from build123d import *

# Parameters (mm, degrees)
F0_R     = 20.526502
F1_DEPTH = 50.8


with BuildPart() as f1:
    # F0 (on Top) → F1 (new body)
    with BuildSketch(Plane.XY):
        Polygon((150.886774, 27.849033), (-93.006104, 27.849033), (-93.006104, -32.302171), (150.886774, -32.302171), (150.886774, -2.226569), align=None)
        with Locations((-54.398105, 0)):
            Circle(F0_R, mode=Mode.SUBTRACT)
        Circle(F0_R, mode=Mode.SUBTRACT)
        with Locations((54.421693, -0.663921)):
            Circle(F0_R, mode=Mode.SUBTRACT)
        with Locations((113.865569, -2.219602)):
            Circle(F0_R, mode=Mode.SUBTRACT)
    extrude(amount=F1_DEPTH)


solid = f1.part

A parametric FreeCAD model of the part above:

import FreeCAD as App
import Part
import Sketcher
from FreeCAD import Vector
Q = App.Units.Quantity


def add_polygon(sketch, points):
    """Adds a closed chain of lines whose ends are joined by coincident constraints."""
    first, n = sketch.GeometryCount, len(points)
    for a, b in zip(points, points[1:] + points[:1]):
        sketch.addGeometry(Part.LineSegment(App.Vector(*a, 0), App.Vector(*b, 0)), False)
    for i in range(n):
        sketch.addConstraint(Sketcher.Constraint("Coincident", first + i, 2, first + (i + 1) % n, 1))

doc = App.newDocument("Part")
body = doc.addObject("PartDesign::Body", "Body")

# Sketch on XY plane
sketch1 = body.newObject("Sketcher::SketchObject", "Sketch")
sketch1.AttachmentSupport = (doc.getObject("XY_Plane"), [""])
sketch1.MapMode = "FlatFace"
add_polygon(sketch1, [(150.886774, 27.849033), (-93.006104, 27.849033), (-93.006104, -32.302171), (150.886774, -32.302171)])  # lines 0-3
sketch1.addGeometry(Part.Circle(Vector(113.865569, -2.219602, 0), Vector(0, 0, 1), 20.526502), False)  # 4
sketch1.addGeometry(Part.Circle(Vector(-54.398105, 0, 0), Vector(0, 0, 1), 20.526502), False)  # 5
sketch1.addGeometry(Part.Circle(Vector(0, 0, 0), Vector(0, 0, 1), 20.526502), False)  # 6
sketch1.addGeometry(Part.Circle(Vector(54.421693, -0.663921, 0), Vector(0, 0, 1), 20.526502), False)  # 7
sketch1.addConstraint(Sketcher.Constraint("Horizontal", 0))
sketch1.addConstraint(Sketcher.Constraint("Vertical", 1))
sketch1.addConstraint(Sketcher.Constraint("Horizontal", 2))
sketch1.addConstraint(Sketcher.Constraint("Vertical", 3))
sketch1.addConstraint(Sketcher.Constraint("Coincident", 6, 3, -1, 1))
sketch1.addConstraint(Sketcher.Constraint("Equal", 4, 5))
sketch1.addConstraint(Sketcher.Constraint("Equal", 5, 6))
sketch1.addConstraint(Sketcher.Constraint("Equal", 6, 7))
sketch1.addConstraint(Sketcher.Constraint("PointOnObject", 5, 3, -1))
sketch1.addConstraint(Sketcher.Constraint("DistanceX", 0, 2, 5, 3, Q("1.52 in")))
sketch1.addConstraint(Sketcher.Constraint("Diameter", 4, 41.053004))
sketch1.addConstraint(Sketcher.Constraint("DistanceX", 0, 2, 0, 1, 243.892878))
sketch1.addConstraint(Sketcher.Constraint("DistanceY", 1, 2, 1, 1, 60.151204))
sketch1.addConstraint(Sketcher.Constraint("DistanceX", -1, 1, 4, 3, 113.865569))
sketch1.addConstraint(Sketcher.Constraint("DistanceY", 7, 3, -1, 1, 0.663921))
sketch1.addConstraint(Sketcher.Constraint("DistanceY", 1, 2, -1, 1, 32.302171))
sketch1.addConstraint(Sketcher.Constraint("DistanceY", 4, 3, 7, 3, 1.555681))
sketch1.addConstraint(Sketcher.Constraint("DistanceX", 7, 3, 2, 2, 96.465081))
sketch1.addConstraint(Sketcher.Constraint("DistanceX", 5, 3, -1, 1, 54.398105))
pad1 = body.newObject("PartDesign::Pad", "Pad")
pad1.Profile = sketch1
pad1.Length = Q("2 in")

doc.recompute()
